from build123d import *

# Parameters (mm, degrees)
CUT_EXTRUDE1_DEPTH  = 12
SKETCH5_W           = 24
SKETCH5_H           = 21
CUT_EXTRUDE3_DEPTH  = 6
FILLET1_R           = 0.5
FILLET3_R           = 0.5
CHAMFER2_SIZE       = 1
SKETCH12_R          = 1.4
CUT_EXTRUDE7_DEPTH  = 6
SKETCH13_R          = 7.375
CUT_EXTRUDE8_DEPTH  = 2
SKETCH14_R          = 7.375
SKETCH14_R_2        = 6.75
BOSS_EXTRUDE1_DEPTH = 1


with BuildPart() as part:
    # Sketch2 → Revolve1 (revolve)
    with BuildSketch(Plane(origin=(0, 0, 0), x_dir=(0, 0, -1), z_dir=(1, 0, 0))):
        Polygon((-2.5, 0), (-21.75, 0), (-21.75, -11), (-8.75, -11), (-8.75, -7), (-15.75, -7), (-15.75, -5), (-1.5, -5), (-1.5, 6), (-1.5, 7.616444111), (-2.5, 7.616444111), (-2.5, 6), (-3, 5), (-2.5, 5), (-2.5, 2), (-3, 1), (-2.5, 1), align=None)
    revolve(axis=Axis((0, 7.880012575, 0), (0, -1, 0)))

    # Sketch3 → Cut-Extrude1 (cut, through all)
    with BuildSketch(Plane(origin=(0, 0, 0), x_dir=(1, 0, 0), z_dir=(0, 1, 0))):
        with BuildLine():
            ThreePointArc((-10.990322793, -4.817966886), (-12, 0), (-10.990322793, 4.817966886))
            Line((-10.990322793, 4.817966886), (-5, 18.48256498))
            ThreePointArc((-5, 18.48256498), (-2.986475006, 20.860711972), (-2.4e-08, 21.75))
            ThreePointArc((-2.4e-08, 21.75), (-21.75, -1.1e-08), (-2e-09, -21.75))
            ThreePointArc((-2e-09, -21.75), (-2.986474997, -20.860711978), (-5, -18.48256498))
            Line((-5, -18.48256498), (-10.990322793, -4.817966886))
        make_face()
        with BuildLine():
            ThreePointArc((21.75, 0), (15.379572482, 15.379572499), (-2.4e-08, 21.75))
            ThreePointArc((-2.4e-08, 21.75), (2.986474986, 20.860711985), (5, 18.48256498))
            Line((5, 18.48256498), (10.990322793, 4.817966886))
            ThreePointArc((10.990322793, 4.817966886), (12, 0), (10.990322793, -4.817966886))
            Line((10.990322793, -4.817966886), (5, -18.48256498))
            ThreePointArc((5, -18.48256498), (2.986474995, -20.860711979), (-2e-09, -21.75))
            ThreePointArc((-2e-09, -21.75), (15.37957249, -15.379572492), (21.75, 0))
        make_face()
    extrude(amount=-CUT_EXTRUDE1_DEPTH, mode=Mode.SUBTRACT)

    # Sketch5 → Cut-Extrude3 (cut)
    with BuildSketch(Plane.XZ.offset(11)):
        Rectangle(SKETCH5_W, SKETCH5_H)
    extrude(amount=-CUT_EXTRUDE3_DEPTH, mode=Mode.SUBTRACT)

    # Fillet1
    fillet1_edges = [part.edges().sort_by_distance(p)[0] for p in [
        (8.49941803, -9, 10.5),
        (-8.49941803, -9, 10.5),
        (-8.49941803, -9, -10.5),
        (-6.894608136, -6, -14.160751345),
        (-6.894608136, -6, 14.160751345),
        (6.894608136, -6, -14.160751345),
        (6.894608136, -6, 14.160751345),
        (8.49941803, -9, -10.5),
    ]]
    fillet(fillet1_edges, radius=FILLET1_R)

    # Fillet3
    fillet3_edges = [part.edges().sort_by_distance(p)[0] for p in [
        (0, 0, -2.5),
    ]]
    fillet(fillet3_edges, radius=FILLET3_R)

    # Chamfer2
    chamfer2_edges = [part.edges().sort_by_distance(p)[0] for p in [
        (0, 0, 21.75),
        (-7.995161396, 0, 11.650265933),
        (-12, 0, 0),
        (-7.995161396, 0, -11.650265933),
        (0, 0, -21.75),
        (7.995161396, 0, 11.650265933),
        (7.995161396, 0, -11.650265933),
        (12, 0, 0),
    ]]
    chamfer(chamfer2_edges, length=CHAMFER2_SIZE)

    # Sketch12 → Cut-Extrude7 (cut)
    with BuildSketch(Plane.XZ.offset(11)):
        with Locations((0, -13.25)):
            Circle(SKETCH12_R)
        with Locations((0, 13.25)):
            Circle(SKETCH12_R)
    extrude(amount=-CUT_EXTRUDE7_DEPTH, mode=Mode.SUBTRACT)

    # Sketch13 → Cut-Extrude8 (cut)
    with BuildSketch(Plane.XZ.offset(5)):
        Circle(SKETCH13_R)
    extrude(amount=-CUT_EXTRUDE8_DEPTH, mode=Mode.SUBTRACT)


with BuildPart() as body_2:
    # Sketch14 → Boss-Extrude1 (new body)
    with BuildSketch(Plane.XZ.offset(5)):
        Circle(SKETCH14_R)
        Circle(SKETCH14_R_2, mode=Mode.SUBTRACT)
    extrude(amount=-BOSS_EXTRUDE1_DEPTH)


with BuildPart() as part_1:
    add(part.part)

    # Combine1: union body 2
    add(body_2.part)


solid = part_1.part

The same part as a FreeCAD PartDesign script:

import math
import FreeCAD as App
import Part
import Sketcher

V = App.Vector
Q = App.Units.Quantity


def edges_at(feature, points):
    """Names of the edges that pass closest to the given points."""
    edges = feature.Shape.Edges
    near = lambda p: min(range(len(edges)), key=lambda i: edges[i].distToShape(Part.Vertex(*p))[0])
    return sorted({f"Edge{near(p) + 1}" for p in points})

doc = App.newDocument("Part")
body = doc.addObject("PartDesign::Body", "Body")

sketch1 = body.newObject("Sketcher::SketchObject", "Sketch")
sketch1.AttachmentSupport = (doc.getObject("YZ_Plane"), [""])
sketch1.MapMode = "FlatFace"
sketch1.addGeometry([
    Part.LineSegment(V(0, 2.5, 0), V(0, 21.8, 0)),
    Part.LineSegment(V(0, 21.8, 0), V(-11, 21.8, 0)),
    Part.LineSegment(V(-11, 21.8, 0), V(-11, 8.8, 0)),
    Part.LineSegment(V(-11, 8.8, 0), V(-7, 8.8, 0)),
    Part.LineSegment(V(-7, 8.8, 0), V(-7, 15.8, 0)),
    Part.LineSegment(V(-7, 15.8, 0), V(-5, 15.8, 0)),
    Part.LineSegment(V(-5, 15.8, 0), V(-5, 1.5, 0)),
    Part.LineSegment(V(-5, 1.5, 0), V(7.6, 1.5, 0)),
    Part.LineSegment(V(7.6, 1.5, 0), V(7.6, 2.5, 0)),
    Part.LineSegment(V(7.6, 2.5, 0), V(6, 2.5, 0)),
    Part.LineSegment(V(6, 2.5, 0), V(5, 3, 0)),
    Part.LineSegment(V(5, 3, 0), V(5, 2.5, 0)),
    Part.LineSegment(V(5, 2.5, 0), V(2, 2.5, 0)),
    Part.LineSegment(V(2, 2.5, 0), V(1, 3, 0)),
    Part.LineSegment(V(1, 3, 0), V(1, 2.5, 0)),
    Part.LineSegment(V(1, 2.5, 0), V(0, 2.5, 0)),
], False)
sketch1.addConstraint([
    Sketcher.Constraint("Coincident", 0, 2, 1, 1),
    Sketcher.Constraint("Coincident", 1, 2, 2, 1),
    Sketcher.Constraint("Coincident", 2, 2, 3, 1),
    Sketcher.Constraint("Coincident", 3, 2, 4, 1),
    Sketcher.Constraint("Coincident", 4, 2, 5, 1),
    Sketcher.Constraint("Coincident", 5, 2, 6, 1),
    Sketcher.Constraint("Coincident", 6, 2, 7, 1),
    Sketcher.Constraint("Coincident", 7, 2, 8, 1),
    Sketcher.Constraint("Coincident", 8, 2, 9, 1),
    Sketcher.Constraint("Coincident", 9, 2, 10, 1),
    Sketcher.Constraint("Coincident", 10, 2, 11, 1),
    Sketcher.Constraint("Coincident", 11, 2, 12, 1),
    Sketcher.Constraint("Coincident", 12, 2, 13, 1),
    Sketcher.Constraint("Coincident", 13, 2, 14, 1),
    Sketcher.Constraint("Coincident", 14, 2, 15, 1),
    Sketcher.Constraint("Coincident", 15, 2, 0, 1),
    Sketcher.Constraint("Vertical", 0),
    Sketcher.Constraint("Horizontal", 1),
    Sketcher.Constraint("Vertical", 2),
    Sketcher.Constraint("Horizontal", 3),
    Sketcher.Constraint("Vertical", 4),
    Sketcher.Constraint("Horizontal", 5),
    Sketcher.Constraint("Vertical", 6),
    Sketcher.Constraint("Horizontal", 7),
    Sketcher.Constraint("Vertical", 8),
    Sketcher.Constraint("Horizontal", 9),
    Sketcher.Constraint("Vertical", 11),
    Sketcher.Constraint("Horizontal", 12),
    Sketcher.Constraint("Vertical", 14),
    Sketcher.Constraint("Horizontal", 15),
    Sketcher.Constraint("PointOnObject", 0, 2, -2),
    Sketcher.Constraint("Parallel", 10, 13),
    Sketcher.Constraint("Horizontal", 9, 2, 11, 2),
    Sketcher.Constraint("Horizontal", 10, 2, 13, 2),
    Sketcher.Constraint("Horizontal", 12, 2, 14, 2),
    Sketcher.Constraint("Equal", 15, 8),
    Sketcher.Constraint("DistanceX", 1, 2, 1, 1, Q("11 mm")),
    Sketcher.Constraint("DistanceX", 3, 1, 3, 2, Q("4 mm")),
    Sketcher.Constraint("DistanceX", 5, 1, 5, 2, Q("2 mm")),
    Sketcher.Constraint("DistanceX", 12, 2, 12, 1, Q("3 mm")),
    Sketcher.Constraint("DistanceX", 15, 2, 15, 1, Q("1 mm")),
    Sketcher.Constraint("DistanceY", 2, 2, 2, 1, Q("13 mm")),
    Sketcher.Constraint("DistanceY", 4, 1, 4, 2, Q("7 mm")),
    Sketcher.Constraint("DistanceY", 11, 2, 11, 1, Q("0.5 mm")),
    Sketcher.Constraint("DistanceX", -1, 1, 9, 2, Q("6 mm")),
    Sketcher.Constraint("DistanceY", -1, 1, 10, 2, Q("3 mm")),
    Sketcher.Constraint("DistanceY", 0, 1, 0, 2, Q("19.25 mm")),
    Sketcher.Constraint("DistanceX", 7, 1, 7, 2, Q("12.616444 mm")),
])
revolution = body.newObject("PartDesign::Revolution", "Revolution")
revolution.Profile = sketch1
revolution.ReferenceAxis = (sketch1, ["H_Axis"])
revolution.Angle = 360

sketch2 = body.newObject("Sketcher::SketchObject", "Sketch001")
sketch2.AttachmentSupport = (doc.getObject("XZ_Plane"), [""])
sketch2.MapMode = "FlatFace"
sketch2.addGeometry([
    Part.ArcOfCircle(Part.Circle(V(0, 0, 0), V(0, 0, 1), 12), math.radians(156), math.radians(204)),
    Part.LineSegment(V(-11, -5, 0), V(-5, -18, 0)),
    Part.ArcOfCircle(Part.Circle(V(0, -16, 0), V(0, 0, 1), 5), math.radians(-156), math.radians(-90)),
    Part.ArcOfCircle(Part.Circle(V(0, 0, 0), V(0, 0, 1), 22), math.radians(90), math.radians(270)),
    Part.ArcOfCircle(Part.Circle(V(0, 16, 0), V(0, 0, 1), 5), math.radians(90), math.radians(156)),
    Part.LineSegment(V(-5, 18, 0), V(-11, 5, 0)),
    Part.ArcOfCircle(Part.Circle(V(0, 0, 0), V(0, 0, 1), 22), math.radians(-90), math.radians(0)),
    Part.ArcOfCircle(Part.Circle(V(0, -16, 0), V(0, 0, 1), 5), math.radians(-90), math.radians(-24)),
    Part.LineSegment(V(5, -18, 0), V(11, -5, 0)),
    Part.ArcOfCircle(Part.Circle(V(0, 0, 0), V(0, 0, 1), 12), math.radians(-24), math.radians(24)),
    Part.LineSegment(V(11, 5, 0), V(5, 18, 0)),
    Part.ArcOfCircle(Part.Circle(V(0, 16, 0), V(0, 0, 1), 5), math.radians(24), math.radians(90)),
    Part.ArcOfCircle(Part.Circle(V(0, 0, 0), V(0, 0, 1), 22), math.radians(0), math.radians(90)),
], False)
sketch2.addConstraint([
    Sketcher.Constraint("Tangent", 0, 2, 1, 1),
    Sketcher.Constraint("Tangent", 1, 2, 2, 1),
    Sketcher.Constraint("Tangent", 2, 2, 3, 2),
    Sketcher.Constraint("Tangent", 3, 1, 4, 1),
    Sketcher.Constraint("Tangent", 4, 2, 5, 1),
    Sketcher.Constraint("Tangent", 5, 2, 0, 1),
    Sketcher.Constraint("Tangent", 6, 1, 7, 1),
    Sketcher.Constraint("Tangent", 7, 2, 8, 1),
    Sketcher.Constraint("Tangent", 8, 2, 9, 1),
    Sketcher.Constraint("Tangent", 9, 2, 10, 1),
    Sketcher.Constraint("Tangent", 10, 2, 11, 1),
    Sketcher.Constraint("Tangent", 11, 2, 12, 2),
    Sketcher.Constraint("Tangent", 12, 1, 6, 2),
    Sketcher.Constraint("Coincident", 0, 3, -1, 1),
    Sketcher.Constraint("Coincident", 3, 3, -1, 1),
    Sketcher.Constraint("Coincident", 6, 3, -1, 1),
    Sketcher.Constraint("Coincident", 9, 3, -1, 1),
    Sketcher.Constraint("Coincident", 7, 3, 2, 3),
    Sketcher.Constraint("Coincident", 11, 3, 4, 3),
    Sketcher.Constraint("Coincident", 11, 2, 3, 1),
    Sketcher.Constraint("Equal", 2, 4),
    Sketcher.Constraint("Equal", 0, 9),
    Sketcher.Constraint("PointOnObject", 2, 3, -2),
    Sketcher.Constraint("PointOnObject", 4, 3, -2),
    Sketcher.Constraint("PointOnObject", 12, 1, -1),
    Sketcher.Constraint("Radius", 0, Q("12 mm")),
    Sketcher.Constraint("Radius", 3, Q("21.75 mm")),
    Sketcher.Constraint("DistanceX", 1, 2, -1, 1, Q("5 mm")),
])
pocket1 = body.newObject("PartDesign::Pocket", "Pocket")
pocket1.Profile = sketch2
pocket1.Type = "ThroughAll"
pocket1.Reversed = True

sketch3 = body.newObject("Sketcher::SketchObject", "Sketch002")
sketch3.AttachmentSupport = (doc.getObject("XZ_Plane"), [""])
sketch3.MapMode = "FlatFace"
sketch3.AttachmentOffset = App.Placement(V(0, 0, 11), App.Rotation())
sketch3.addGeometry([
    Part.LineSegment(V(-12, 10, 0), V(-12, -10, 0)),
    Part.LineSegment(V(-12, -10, 0), V(12, -10, 0)),
    Part.LineSegment(V(12, -10, 0), V(12, 10, 0)),
    Part.LineSegment(V(12, 10, 0), V(-12, 10, 0)),
], False)
sketch3.addConstraint([
    Sketcher.Constraint("Coincident", 0, 2, 1, 1),
    Sketcher.Constraint("Coincident", 1, 2, 2, 1),
    Sketcher.Constraint("Coincident", 2, 2, 3, 1),
    Sketcher.Constraint("Coincident", 3, 2, 0, 1),
    Sketcher.Constraint("Vertical", 0),
    Sketcher.Constraint("Horizontal", 1),
    Sketcher.Constraint("Vertical", 2),
    Sketcher.Constraint("Horizontal", 3),
    Sketcher.Constraint("Symmetric", 0, 2, 2, 2, -1, 1),
    Sketcher.Constraint("DistanceX", 1, 1, 1, 2, Q("24 mm")),
    Sketcher.Constraint("DistanceY", 0, 2, 0, 1, Q("21 mm")),
])
pocket2 = body.newObject("PartDesign::Pocket", "Pocket001")
pocket2.Profile = sketch3
pocket2.Length = 6
doc.recompute()

fillet = body.newObject("PartDesign::Fillet", "Fillet")
fillet.Base = (pocket2, edges_at(pocket2, [
    (8.499, -9, 10.5),
    (-8.499, -9, 10.5),
    (-8.499, -9, -10.5),
    (-6.895, -6, -14.161),
    (-6.895, -6, 14.161),
    (6.895, -6, -14.161),
    (6.895, -6, 14.161),
    (8.499, -9, -10.5),
]))
fillet.Radius = 0.5
doc.recompute()

fillet2 = body.newObject("PartDesign::Fillet", "Fillet001")
fillet2.Base = (fillet, edges_at(fillet, [(0, 0, -2.5)]))
fillet2.Radius = 0.5
doc.recompute()

chamfer = body.newObject("PartDesign::Chamfer", "Chamfer")
chamfer.Base = (fillet2, edges_at(fillet2, [
    (-2.986, 0, 20.861),
    (-7.995, 0, 11.65),
    (-12, 0, 0),
    (-7.995, 0, -11.65),
    (-2.986, 0, -20.861),
    (7.995, 0, 11.65),
    (7.995, 0, -11.65),
    (12, 0, 0),
]))
chamfer.Size = 1

sketch4 = body.newObject("Sketcher::SketchObject", "Sketch003")
sketch4.AttachmentSupport = (doc.getObject("XZ_Plane"), [""])
sketch4.MapMode = "FlatFace"
sketch4.AttachmentOffset = App.Placement(V(0, 0, 11), App.Rotation())
sketch4.addGeometry([
    Part.Circle(V(0, -13.2, 0), V(0, 0, 1), 1.4),
    Part.Circle(V(0, 13.2, 0), V(0, 0, 1), 1.4),
], False)
sketch4.addConstraint([
    Sketcher.Constraint("Equal", 0, 1),
    Sketcher.Constraint("Symmetric", 0, 3, 1, 3, -1, 1),
    Sketcher.Constraint("PointOnObject", 0, 3, -2),
    Sketcher.Constraint("Diameter", 0, Q("2.8 mm")),
    Sketcher.Constraint("DistanceY", 0, 3, 1, 3, Q("26.5 mm")),
])
pocket3 = body.newObject("PartDesign::Pocket", "Pocket002")
pocket3.Profile = sketch4
pocket3.Length = 6

sketch5 = body.newObject("Sketcher::SketchObject", "Sketch004")
sketch5.AttachmentSupport = (doc.getObject("XZ_Plane"), [""])
sketch5.MapMode = "FlatFace"
sketch5.AttachmentOffset = App.Placement(V(0, 0, 5), App.Rotation())
sketch5.addGeometry(Part.Circle(V(0, 0, 0), V(0, 0, 1), 7), False)
sketch5.addConstraint([
    Sketcher.Constraint("Coincident", 0, 3, -1, 1),
    Sketcher.Constraint("Diameter", 0, Q("14.75 mm")),
])
pocket4 = body.newObject("PartDesign::Pocket", "Pocket003")
pocket4.Profile = sketch5
pocket4.Length = 2
body2 = doc.addObject("PartDesign::Body", "Body001")

sketch6 = body2.newObject("Sketcher::SketchObject", "Sketch005")
sketch6.AttachmentSupport = (doc.getObject("XZ_Plane001"), [""])
sketch6.MapMode = "FlatFace"
sketch6.AttachmentOffset = App.Placement(V(0, 0, 5), App.Rotation())
sketch6.addGeometry([
    Part.Circle(V(0, 0, 0), V(0, 0, 1), 7),
    Part.Circle(V(0, 0, 0), V(0, 0, 1), 7),
], False)
sketch6.addConstraint([
    Sketcher.Constraint("Coincident", 0, 3, -1, 1),
    Sketcher.Constraint("Coincident", 1, 3, -1, 1),
    Sketcher.Constraint("Diameter", 1, Q("13.5 mm")),
    Sketcher.Constraint("Diameter", 0, Q("14.75 mm")),
])
pad1 = body2.newObject("PartDesign::Pad", "Pad")
pad1.Profile = sketch6
pad1.Length = 1
pad1.Reversed = True
doc.recompute()

boolean = body.newObject("PartDesign::Boolean", "Boolean")
boolean.Type = "Fuse"
boolean.addObjects([body2])

doc.recompute()
